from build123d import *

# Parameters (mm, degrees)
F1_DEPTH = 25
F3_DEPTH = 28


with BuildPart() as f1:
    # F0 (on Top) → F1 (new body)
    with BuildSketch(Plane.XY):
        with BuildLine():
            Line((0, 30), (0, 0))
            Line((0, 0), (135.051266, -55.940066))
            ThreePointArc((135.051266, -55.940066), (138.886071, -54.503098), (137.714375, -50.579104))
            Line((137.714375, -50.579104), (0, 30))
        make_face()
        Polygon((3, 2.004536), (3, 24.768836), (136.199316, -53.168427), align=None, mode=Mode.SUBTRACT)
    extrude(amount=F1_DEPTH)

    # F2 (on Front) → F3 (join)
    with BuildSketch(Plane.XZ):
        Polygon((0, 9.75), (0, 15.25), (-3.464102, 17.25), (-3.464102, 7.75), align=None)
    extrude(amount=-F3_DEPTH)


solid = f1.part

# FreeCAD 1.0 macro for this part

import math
import FreeCAD as App
import Part
import Sketcher

V = App.Vector
Q = App.Units.Quantity

doc = App.newDocument("Part")
body = doc.addObject("PartDesign::Body", "Body")

sketch1 = body.newObject("Sketcher::SketchObject", "Sketch")
sketch1.AttachmentSupport = (doc.getObject("XY_Plane"), [""])
sketch1.MapMode = "FlatFace"
sketch1.addGeometry(Part.LineSegment(V(0, 30, 0), V(0, 0, 0)), False)
sketch1.addGeometry(Part.LineSegment(V(0, 0, 0), V(135.1, -55.9, 0)), False)
sketch1.addGeometry(Part.ArcOfCircle(Part.Circle(V(136.2, -53.2, 0), V(0, 0, 1), 3), math.radians(-112), math.radians(60)), False)
sketch1.addGeometry(Part.LineSegment(V(137.7, -50.6, 0), V(0, 30, 0)), False)
sketch1.addGeometry(Part.LineSegment(V(136.2, -53.2, 0), V(3, 2, 0)), False)
sketch1.addGeometry(Part.LineSegment(V(3, 2, 0), V(3, 24.8, 0)), False)
sketch1.addGeometry(Part.LineSegment(V(3, 24.8, 0), V(136.2, -53.2, 0)), False)
sketch1.addConstraint(Sketcher.Constraint("Coincident", 0, 2, 1, 1))
sketch1.addConstraint(Sketcher.Constraint("Tangent", 1, 2, 2, 1))
sketch1.addConstraint(Sketcher.Constraint("Tangent", 2, 2, 3, 1))
sketch1.addConstraint(Sketcher.Constraint("Coincident", 3, 2, 0, 1))
sketch1.addConstraint(Sketcher.Constraint("Coincident", 4, 2, 5, 1))
sketch1.addConstraint(Sketcher.Constraint("Coincident", 5, 2, 6, 1))
sketch1.addConstraint(Sketcher.Constraint("Coincident", 6, 2, 4, 1))
sketch1.addConstraint(Sketcher.Constraint("Vertical", 0))
sketch1.addConstraint(Sketcher.Constraint("Vertical", 5))
sketch1.addConstraint(Sketcher.Constraint("Coincident", 0, 2, -1, 1))
sketch1.addConstraint(Sketcher.Constraint("Coincident", 6, 2, 2, 3))
sketch1.addConstraint(Sketcher.Constraint("Parallel", 1, 4))
sketch1.addConstraint(Sketcher.Constraint("Parallel", 3, 6))
sketch1.addConstraint(Sketcher.Constraint("Radius", 2, 3.0))
sketch1.addConstraint(Sketcher.Constraint("DistanceY", 0, 2, 0, 1, 30.0))
sketch1.addConstraint(Sketcher.Constraint("DistanceX", -1, 1, 4, 2, 3.0))
sketch1.addConstraint(Sketcher.Constraint("Angle", 1, Q("-22.5 deg")))
sketch1.addConstraint(Sketcher.Constraint("Distance", 4, 144.173901))
pad1 = body.newObject("PartDesign::Pad", "Pad")
pad1.Profile = sketch1
pad1.Length = 25

sketch2 = body.newObject("Sketcher::SketchObject", "Sketch001")
sketch2.AttachmentSupport = (doc.getObject("XZ_Plane"), [""])
sketch2.MapMode = "FlatFace"
sketch2.addGeometry(Part.LineSegment(V(0, 9.8, 0), V(0, 15.2, 0)), False)
sketch2.addGeometry(Part.LineSegment(V(0, 15.2, 0), V(-3.5, 17.2, 0)), False)
sketch2.addGeometry(Part.LineSegment(V(-3.5, 17.2, 0), V(-3.5, 7.8, 0)), False)
sketch2.addGeometry(Part.LineSegment(V(-3.5, 7.8, 0), V(0, 9.8, 0)), False)
sketch2.addConstraint(Sketcher.Constraint("Coincident", 0, 2, 1, 1))
sketch2.addConstraint(Sketcher.Constraint("Coincident", 1, 2, 2, 1))
sketch2.addConstraint(Sketcher.Constraint("Coincident", 2, 2, 3, 1))
sketch2.addConstraint(Sketcher.Constraint("Coincident", 3, 2, 0, 1))
sketch2.addConstraint(Sketcher.Constraint("Vertical", 0))
sketch2.addConstraint(Sketcher.Constraint("Vertical", 2))
sketch2.addConstraint(Sketcher.Constraint("PointOnObject", 0, 2, -2))
sketch2.addConstraint(Sketcher.Constraint("Equal", 1, 3))
sketch2.addConstraint(Sketcher.Constraint("Angle", 1, Q("150.000003 deg")))
sketch2.addConstraint(Sketcher.Constraint("Distance", 1, 4.0))
sketch2.addConstraint(Sketcher.Constraint("DistanceY", 0, 1, 0, 2, 5.5))
sketch2.addConstraint(Sketcher.Constraint("DistanceY", -1, 1, 0, 2, 15.25))
pad2 = body.newObject("PartDesign::Pad", "Pad001")
pad2.Profile = sketch2
pad2.Length = 28
pad2.Reversed = True

doc.recompute()
